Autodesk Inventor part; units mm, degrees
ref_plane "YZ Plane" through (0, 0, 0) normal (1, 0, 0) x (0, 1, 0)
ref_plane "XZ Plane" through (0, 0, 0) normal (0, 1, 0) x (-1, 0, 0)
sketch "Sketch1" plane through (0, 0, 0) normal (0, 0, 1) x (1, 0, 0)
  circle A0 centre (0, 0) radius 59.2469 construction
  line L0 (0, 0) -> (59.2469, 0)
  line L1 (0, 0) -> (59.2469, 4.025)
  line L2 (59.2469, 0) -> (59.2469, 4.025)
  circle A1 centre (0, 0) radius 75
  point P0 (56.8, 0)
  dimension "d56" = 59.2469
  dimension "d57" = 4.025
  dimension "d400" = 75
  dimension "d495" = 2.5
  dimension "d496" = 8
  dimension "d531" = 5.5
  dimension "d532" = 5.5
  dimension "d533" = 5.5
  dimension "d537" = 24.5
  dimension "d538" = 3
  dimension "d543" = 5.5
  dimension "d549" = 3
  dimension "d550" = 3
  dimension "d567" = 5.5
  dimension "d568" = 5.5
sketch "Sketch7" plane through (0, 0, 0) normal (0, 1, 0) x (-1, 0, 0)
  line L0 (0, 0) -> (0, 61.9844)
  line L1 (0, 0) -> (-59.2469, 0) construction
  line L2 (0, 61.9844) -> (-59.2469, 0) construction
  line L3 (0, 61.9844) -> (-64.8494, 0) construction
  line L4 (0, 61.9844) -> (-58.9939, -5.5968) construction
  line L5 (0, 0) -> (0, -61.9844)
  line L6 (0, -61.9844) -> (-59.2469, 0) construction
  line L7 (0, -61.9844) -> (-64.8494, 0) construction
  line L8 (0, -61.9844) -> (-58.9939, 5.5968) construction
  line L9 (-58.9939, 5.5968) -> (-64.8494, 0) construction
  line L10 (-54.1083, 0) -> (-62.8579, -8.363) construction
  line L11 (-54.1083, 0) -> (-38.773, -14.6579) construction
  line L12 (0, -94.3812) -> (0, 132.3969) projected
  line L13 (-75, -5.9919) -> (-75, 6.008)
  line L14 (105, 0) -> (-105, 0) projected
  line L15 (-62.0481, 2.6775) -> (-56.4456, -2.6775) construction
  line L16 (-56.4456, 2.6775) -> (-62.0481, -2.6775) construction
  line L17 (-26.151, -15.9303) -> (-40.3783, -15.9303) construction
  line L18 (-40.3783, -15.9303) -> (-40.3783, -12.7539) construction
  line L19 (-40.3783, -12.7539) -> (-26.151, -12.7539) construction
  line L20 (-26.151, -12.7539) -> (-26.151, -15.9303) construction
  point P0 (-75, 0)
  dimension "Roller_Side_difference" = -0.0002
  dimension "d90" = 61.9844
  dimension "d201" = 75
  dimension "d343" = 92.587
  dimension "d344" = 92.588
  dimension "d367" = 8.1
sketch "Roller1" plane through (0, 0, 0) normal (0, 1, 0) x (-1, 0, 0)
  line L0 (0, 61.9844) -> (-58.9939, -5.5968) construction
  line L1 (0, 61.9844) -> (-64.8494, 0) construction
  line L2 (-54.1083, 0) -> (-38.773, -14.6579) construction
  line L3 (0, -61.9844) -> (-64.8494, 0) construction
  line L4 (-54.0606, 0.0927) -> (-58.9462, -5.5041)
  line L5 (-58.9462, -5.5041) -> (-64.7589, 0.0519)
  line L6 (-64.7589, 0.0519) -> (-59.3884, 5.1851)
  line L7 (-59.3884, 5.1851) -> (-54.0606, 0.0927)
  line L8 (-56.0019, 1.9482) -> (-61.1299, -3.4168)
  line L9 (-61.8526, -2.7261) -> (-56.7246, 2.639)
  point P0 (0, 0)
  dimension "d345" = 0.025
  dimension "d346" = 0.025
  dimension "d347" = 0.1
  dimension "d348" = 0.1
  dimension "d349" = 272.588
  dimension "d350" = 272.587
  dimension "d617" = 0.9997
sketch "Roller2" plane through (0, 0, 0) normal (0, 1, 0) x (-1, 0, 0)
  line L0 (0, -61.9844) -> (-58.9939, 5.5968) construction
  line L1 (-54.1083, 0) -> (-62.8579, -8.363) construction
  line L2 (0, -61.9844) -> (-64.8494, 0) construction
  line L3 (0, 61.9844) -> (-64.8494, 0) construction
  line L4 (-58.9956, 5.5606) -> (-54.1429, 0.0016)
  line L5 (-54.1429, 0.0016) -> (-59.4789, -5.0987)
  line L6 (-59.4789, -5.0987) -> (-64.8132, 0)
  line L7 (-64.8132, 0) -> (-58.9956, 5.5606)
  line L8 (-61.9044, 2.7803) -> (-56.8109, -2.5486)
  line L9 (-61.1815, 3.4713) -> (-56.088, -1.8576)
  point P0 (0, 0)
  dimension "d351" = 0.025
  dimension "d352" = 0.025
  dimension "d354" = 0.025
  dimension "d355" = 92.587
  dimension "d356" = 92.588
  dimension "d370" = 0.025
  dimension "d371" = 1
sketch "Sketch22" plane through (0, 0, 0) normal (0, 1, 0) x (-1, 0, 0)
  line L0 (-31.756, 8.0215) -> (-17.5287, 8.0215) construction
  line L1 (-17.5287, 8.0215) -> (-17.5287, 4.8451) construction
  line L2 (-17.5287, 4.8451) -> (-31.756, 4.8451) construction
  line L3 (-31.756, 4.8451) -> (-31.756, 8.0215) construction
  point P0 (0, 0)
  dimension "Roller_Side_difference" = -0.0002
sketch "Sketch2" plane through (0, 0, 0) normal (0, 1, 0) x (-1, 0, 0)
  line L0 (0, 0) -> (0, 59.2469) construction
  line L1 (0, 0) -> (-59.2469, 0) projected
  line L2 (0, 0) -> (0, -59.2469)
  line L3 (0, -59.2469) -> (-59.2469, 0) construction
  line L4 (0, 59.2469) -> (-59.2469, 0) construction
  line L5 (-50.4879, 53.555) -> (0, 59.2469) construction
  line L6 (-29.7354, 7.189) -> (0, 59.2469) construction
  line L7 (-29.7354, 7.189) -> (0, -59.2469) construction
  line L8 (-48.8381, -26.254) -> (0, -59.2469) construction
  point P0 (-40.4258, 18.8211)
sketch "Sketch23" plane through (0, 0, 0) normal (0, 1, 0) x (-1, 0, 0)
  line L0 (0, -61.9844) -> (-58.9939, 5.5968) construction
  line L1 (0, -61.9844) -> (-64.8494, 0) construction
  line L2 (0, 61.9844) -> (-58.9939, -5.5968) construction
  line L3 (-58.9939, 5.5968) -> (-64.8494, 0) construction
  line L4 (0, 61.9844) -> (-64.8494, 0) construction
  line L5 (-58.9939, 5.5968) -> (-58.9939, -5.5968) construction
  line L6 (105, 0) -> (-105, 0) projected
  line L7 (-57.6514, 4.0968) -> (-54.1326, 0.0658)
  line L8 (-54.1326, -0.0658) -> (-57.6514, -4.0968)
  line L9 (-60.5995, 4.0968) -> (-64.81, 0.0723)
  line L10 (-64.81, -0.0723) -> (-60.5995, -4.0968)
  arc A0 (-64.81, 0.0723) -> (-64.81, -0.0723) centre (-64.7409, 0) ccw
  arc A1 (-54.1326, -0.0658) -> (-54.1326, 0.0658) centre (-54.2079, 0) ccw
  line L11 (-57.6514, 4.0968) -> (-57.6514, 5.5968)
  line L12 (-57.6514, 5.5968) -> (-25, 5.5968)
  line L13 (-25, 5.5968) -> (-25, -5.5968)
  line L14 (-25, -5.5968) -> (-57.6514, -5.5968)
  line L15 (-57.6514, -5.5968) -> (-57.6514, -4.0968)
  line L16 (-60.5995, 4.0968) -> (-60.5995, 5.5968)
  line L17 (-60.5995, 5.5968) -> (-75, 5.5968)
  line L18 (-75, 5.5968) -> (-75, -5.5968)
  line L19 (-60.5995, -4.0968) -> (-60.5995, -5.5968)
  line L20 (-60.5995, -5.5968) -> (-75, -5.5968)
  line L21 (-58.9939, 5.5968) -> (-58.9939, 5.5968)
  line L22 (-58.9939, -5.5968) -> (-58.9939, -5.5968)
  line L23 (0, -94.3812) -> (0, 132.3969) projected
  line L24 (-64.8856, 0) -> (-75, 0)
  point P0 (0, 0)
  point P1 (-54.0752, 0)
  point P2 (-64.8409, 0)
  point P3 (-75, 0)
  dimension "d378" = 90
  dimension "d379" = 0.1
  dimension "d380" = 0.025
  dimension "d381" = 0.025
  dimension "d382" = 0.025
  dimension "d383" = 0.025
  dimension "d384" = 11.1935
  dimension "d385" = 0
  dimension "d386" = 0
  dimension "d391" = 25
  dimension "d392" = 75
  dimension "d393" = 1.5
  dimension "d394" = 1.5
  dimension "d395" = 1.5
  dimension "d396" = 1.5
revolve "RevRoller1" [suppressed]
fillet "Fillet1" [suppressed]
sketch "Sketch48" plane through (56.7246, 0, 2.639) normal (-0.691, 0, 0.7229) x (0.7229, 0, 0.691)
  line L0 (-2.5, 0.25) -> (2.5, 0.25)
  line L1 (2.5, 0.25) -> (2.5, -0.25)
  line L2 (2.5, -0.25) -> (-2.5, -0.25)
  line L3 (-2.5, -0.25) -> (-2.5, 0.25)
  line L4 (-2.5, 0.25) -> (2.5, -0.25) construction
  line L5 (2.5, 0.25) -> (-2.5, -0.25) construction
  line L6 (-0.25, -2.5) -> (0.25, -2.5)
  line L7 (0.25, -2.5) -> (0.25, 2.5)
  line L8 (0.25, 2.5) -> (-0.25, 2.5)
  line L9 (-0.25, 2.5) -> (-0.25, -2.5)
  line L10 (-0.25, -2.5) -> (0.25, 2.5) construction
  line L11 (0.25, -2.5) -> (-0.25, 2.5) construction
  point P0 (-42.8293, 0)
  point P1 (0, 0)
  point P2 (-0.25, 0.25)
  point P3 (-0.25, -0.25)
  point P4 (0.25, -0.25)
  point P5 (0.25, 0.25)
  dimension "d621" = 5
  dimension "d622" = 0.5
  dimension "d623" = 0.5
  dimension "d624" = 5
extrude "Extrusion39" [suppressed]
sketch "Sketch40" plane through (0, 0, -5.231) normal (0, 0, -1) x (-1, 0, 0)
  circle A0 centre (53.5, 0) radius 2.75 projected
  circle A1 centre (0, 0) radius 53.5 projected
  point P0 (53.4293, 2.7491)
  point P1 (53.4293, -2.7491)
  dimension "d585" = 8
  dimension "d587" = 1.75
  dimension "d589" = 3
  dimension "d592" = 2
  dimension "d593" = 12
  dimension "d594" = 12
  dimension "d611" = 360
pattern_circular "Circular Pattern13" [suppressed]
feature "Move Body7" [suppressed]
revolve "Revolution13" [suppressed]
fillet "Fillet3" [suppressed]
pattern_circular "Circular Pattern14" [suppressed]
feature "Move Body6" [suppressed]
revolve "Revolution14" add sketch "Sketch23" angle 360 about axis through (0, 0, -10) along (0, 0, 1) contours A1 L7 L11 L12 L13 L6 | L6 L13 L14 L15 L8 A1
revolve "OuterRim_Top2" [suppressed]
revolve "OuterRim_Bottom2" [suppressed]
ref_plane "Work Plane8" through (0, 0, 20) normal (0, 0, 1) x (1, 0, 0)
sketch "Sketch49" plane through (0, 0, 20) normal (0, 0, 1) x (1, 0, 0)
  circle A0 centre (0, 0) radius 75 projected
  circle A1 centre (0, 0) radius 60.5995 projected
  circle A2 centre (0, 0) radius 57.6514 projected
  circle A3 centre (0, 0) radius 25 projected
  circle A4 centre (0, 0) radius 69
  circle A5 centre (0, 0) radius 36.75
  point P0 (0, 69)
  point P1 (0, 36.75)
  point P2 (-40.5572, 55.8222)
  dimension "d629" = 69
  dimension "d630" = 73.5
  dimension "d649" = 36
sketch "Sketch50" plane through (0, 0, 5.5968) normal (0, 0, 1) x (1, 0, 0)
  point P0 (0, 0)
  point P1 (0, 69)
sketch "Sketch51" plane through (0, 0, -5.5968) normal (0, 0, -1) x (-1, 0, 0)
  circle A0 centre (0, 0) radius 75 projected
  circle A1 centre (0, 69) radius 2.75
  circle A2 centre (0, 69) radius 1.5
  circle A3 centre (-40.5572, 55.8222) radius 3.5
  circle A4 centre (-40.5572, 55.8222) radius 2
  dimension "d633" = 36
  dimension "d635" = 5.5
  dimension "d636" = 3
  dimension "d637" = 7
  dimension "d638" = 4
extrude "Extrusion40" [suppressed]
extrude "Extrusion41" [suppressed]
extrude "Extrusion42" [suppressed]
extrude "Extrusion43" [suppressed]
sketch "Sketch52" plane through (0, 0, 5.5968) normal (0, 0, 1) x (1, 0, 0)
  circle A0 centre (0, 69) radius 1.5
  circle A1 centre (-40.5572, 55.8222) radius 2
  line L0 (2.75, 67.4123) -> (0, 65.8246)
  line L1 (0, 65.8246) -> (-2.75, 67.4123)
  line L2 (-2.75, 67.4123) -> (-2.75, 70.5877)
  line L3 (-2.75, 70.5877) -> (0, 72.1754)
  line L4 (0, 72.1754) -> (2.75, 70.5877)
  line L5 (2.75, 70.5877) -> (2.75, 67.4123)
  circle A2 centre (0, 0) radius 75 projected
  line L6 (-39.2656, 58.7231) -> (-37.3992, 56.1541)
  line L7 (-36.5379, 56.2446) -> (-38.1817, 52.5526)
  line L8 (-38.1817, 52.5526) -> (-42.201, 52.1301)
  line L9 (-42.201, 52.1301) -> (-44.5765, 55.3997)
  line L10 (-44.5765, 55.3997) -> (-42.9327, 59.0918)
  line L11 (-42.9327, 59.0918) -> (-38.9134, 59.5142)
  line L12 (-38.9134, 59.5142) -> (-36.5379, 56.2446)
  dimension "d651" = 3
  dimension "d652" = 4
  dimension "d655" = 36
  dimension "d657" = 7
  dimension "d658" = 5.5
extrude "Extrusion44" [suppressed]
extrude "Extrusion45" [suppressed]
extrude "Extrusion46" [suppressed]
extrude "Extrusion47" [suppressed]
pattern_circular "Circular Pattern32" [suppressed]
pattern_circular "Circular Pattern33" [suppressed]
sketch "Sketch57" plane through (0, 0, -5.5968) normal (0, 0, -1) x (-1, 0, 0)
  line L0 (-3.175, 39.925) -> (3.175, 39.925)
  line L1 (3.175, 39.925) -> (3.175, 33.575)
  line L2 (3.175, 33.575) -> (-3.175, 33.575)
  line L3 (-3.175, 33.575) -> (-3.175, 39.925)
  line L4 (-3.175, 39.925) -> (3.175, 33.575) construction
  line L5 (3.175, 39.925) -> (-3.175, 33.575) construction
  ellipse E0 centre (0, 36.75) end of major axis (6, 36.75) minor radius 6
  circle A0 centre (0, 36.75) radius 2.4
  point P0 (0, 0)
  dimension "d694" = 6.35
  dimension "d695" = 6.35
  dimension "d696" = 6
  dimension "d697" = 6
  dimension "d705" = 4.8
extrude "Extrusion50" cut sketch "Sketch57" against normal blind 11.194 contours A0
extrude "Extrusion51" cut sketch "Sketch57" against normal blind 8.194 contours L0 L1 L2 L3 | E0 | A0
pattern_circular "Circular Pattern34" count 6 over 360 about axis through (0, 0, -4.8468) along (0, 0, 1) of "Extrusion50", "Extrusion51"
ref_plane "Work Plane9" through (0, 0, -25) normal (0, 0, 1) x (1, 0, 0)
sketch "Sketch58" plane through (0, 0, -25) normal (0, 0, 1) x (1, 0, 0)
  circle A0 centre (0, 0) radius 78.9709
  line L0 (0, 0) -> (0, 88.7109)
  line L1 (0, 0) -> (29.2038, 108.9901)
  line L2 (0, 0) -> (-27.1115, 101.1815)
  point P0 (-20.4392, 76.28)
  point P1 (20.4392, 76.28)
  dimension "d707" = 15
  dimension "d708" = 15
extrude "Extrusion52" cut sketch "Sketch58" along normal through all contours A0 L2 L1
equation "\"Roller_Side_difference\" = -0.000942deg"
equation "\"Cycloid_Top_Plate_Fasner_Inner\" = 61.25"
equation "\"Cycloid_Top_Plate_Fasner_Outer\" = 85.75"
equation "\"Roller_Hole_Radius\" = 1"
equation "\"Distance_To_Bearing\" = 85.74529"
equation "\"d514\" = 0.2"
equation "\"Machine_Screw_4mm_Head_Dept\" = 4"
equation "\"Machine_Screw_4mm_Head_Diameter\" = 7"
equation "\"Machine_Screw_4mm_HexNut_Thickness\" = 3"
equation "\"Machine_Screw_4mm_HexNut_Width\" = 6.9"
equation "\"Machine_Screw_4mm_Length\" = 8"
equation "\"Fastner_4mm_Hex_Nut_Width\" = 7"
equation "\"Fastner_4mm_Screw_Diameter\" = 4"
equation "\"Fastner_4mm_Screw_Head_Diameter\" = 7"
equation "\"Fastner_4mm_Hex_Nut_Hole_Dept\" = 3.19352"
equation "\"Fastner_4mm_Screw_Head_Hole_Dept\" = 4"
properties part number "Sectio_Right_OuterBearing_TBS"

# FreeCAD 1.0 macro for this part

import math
import FreeCAD as App
import Part
import Sketcher
Q = App.Units.Quantity

doc = App.newDocument("Part")
body = doc.addObject("PartDesign::Body", "Body")

sketch1 = body.newObject("Sketcher::SketchObject", "Sketch")
sketch1.AttachmentSupport = (doc.getObject("XZ_Plane"), [""])
sketch1.MapMode = "FlatFace"
sketch1.addGeometry([
    Part.ArcOfCircle(Part.Circle(App.Vector(54.21, 0, 0), App.Vector(0, 0, 1), 0.1), math.radians(139), math.radians(221)),
    Part.LineSegment(App.Vector(54.13, -0.07, 0), App.Vector(57.65, -4.1, 0)),
    Part.LineSegment(App.Vector(57.65, -4.1, 0), App.Vector(57.65, -5.6, 0)),
    Part.LineSegment(App.Vector(57.65, -5.6, 0), App.Vector(25, -5.6, 0)),
    Part.LineSegment(App.Vector(25, -5.6, 0), App.Vector(25, 5.6, 0)),
    Part.LineSegment(App.Vector(25, 5.6, 0), App.Vector(57.65, 5.6, 0)),
    Part.LineSegment(App.Vector(57.65, 5.6, 0), App.Vector(57.65, 4.1, 0)),
    Part.LineSegment(App.Vector(57.65, 4.1, 0), App.Vector(54.13, 0.07, 0)),
], False)
sketch1.addConstraint([
    Sketcher.Constraint("Coincident", 0, 2, 1, 1),
    Sketcher.Constraint("Coincident", 1, 2, 2, 1),
    Sketcher.Constraint("Coincident", 2, 2, 3, 1),
    Sketcher.Constraint("Coincident", 3, 2, 4, 1),
    Sketcher.Constraint("Coincident", 4, 2, 5, 1),
    Sketcher.Constraint("Coincident", 5, 2, 6, 1),
    Sketcher.Constraint("Coincident", 6, 2, 7, 1),
    Sketcher.Constraint("Coincident", 7, 2, 0, 1),
    Sketcher.Constraint("Vertical", 2),
    Sketcher.Constraint("Horizontal", 3),
    Sketcher.Constraint("Vertical", 4),
    Sketcher.Constraint("Horizontal", 5),
    Sketcher.Constraint("Vertical", 6),
    Sketcher.Constraint("Symmetric", 2, 2, 5, 2, -1),
    Sketcher.Constraint("Symmetric", 0, 2, 7, 2, -1),
    Sketcher.Constraint("Equal", 2, 6),
    Sketcher.Constraint("Radius", 0, 0.1),
    Sketcher.Constraint("DistanceY", 2, 2, 2, 1, 1.5),
    Sketcher.Constraint("DistanceX", -1, 1, 3, 2, 25.0),
    Sketcher.Constraint("DistanceY", 4, 1, 4, 2, 11.1936),
    Sketcher.Constraint("Angle", 1, Q("-48.8812 deg")),
    Sketcher.Constraint("DistanceX", 3, 2, 3, 1, 32.6514),
    Sketcher.Constraint("DistanceY", 1, 2, 0, 2, 4.031),
])
revolution = body.newObject("PartDesign::Revolution", "Revolution")
revolution.Profile = sketch1
revolution.ReferenceAxis = (sketch1, ["V_Axis"])
revolution.Angle = 360

sketch2 = body.newObject("Sketcher::SketchObject", "Sketch001")
sketch2.AttachmentSupport = (doc.getObject("XY_Plane"), [""])
sketch2.MapMode = "FlatFace"
sketch2.AttachmentOffset = App.Placement(App.Vector(0, 0, -5.5968), App.Rotation())
sketch2.addGeometry(Part.Circle(App.Vector(0, 36.8, 0), App.Vector(0, 0, 1), 2.4), False)
sketch2.addConstraint([
    Sketcher.Constraint("PointOnObject", 0, 3, -2),
    Sketcher.Constraint("Diameter", 0, 4.8),
    Sketcher.Constraint("DistanceY", -1, 1, 0, 3, 36.75),
])
pocket1 = body.newObject("PartDesign::Pocket", "Pocket")
pocket1.Profile = sketch2
pocket1.Length = 11.194
pocket1.Reversed = True

sketch3 = body.newObject("Sketcher::SketchObject", "Sketch002")
sketch3.AttachmentSupport = (doc.getObject("XY_Plane"), [""])
sketch3.MapMode = "FlatFace"
sketch3.AttachmentOffset = App.Placement(App.Vector(0, 0, -5.5968), App.Rotation())
sketch3.addGeometry(Part.Ellipse(App.Vector(-6, 36.75, 0), App.Vector(0, 30.75, 0), App.Vector(0, 36.75, 0)), False)
sketch3.addConstraint(Sketcher.Constraint("Block", 0))
pocket2 = body.newObject("PartDesign::Pocket", "Pocket001")
pocket2.Profile = sketch3
pocket2.Length = 8.194
pocket2.Reversed = True
doc.recompute()

polarpattern = body.newObject("PartDesign::PolarPattern", "PolarPattern")
polarpattern.Originals = [pocket1, pocket2]
polarpattern.Axis = (doc.getObject("Z_Axis"), [""])
polarpattern.Angle = 360
polarpattern.Occurrences = 6
body.Tip = polarpattern

sketch4 = body.newObject("Sketcher::SketchObject", "Sketch003")
sketch4.AttachmentSupport = (doc.getObject("XY_Plane"), [""])
sketch4.MapMode = "FlatFace"
sketch4.AttachmentOffset = App.Placement(App.Vector(0, 0, -25), App.Rotation())
sketch4.addGeometry([
    Part.ArcOfCircle(Part.Circle(App.Vector(0, 0, 0), App.Vector(0, 0, 1), 79), math.radians(105), math.radians(435)),
    Part.LineSegment(App.Vector(20, 76, 0), App.Vector(0, 0, 0)),
    Part.LineSegment(App.Vector(0, 0, 0), App.Vector(-20, 76, 0)),
], False)
sketch4.addConstraint([
    Sketcher.Constraint("Coincident", 0, 2, 1, 1),
    Sketcher.Constraint("Coincident", 1, 2, 2, 1),
    Sketcher.Constraint("Coincident", 2, 2, 0, 1),
    Sketcher.Constraint("Coincident", 0, 3, -1, 1),
    Sketcher.Constraint("Coincident", 1, 2, -1, 1),
    Sketcher.Constraint("Horizontal", 0, 2, 2, 2),
    Sketcher.Constraint("Angle", 1, Q("-105 deg")),
    Sketcher.Constraint("Radius", 0, 78.971),
])
pocket3 = body.newObject("PartDesign::Pocket", "Pocket002")
pocket3.Profile = sketch4
pocket3.Type = "ThroughAll"
pocket3.Reversed = True

doc.recompute()
